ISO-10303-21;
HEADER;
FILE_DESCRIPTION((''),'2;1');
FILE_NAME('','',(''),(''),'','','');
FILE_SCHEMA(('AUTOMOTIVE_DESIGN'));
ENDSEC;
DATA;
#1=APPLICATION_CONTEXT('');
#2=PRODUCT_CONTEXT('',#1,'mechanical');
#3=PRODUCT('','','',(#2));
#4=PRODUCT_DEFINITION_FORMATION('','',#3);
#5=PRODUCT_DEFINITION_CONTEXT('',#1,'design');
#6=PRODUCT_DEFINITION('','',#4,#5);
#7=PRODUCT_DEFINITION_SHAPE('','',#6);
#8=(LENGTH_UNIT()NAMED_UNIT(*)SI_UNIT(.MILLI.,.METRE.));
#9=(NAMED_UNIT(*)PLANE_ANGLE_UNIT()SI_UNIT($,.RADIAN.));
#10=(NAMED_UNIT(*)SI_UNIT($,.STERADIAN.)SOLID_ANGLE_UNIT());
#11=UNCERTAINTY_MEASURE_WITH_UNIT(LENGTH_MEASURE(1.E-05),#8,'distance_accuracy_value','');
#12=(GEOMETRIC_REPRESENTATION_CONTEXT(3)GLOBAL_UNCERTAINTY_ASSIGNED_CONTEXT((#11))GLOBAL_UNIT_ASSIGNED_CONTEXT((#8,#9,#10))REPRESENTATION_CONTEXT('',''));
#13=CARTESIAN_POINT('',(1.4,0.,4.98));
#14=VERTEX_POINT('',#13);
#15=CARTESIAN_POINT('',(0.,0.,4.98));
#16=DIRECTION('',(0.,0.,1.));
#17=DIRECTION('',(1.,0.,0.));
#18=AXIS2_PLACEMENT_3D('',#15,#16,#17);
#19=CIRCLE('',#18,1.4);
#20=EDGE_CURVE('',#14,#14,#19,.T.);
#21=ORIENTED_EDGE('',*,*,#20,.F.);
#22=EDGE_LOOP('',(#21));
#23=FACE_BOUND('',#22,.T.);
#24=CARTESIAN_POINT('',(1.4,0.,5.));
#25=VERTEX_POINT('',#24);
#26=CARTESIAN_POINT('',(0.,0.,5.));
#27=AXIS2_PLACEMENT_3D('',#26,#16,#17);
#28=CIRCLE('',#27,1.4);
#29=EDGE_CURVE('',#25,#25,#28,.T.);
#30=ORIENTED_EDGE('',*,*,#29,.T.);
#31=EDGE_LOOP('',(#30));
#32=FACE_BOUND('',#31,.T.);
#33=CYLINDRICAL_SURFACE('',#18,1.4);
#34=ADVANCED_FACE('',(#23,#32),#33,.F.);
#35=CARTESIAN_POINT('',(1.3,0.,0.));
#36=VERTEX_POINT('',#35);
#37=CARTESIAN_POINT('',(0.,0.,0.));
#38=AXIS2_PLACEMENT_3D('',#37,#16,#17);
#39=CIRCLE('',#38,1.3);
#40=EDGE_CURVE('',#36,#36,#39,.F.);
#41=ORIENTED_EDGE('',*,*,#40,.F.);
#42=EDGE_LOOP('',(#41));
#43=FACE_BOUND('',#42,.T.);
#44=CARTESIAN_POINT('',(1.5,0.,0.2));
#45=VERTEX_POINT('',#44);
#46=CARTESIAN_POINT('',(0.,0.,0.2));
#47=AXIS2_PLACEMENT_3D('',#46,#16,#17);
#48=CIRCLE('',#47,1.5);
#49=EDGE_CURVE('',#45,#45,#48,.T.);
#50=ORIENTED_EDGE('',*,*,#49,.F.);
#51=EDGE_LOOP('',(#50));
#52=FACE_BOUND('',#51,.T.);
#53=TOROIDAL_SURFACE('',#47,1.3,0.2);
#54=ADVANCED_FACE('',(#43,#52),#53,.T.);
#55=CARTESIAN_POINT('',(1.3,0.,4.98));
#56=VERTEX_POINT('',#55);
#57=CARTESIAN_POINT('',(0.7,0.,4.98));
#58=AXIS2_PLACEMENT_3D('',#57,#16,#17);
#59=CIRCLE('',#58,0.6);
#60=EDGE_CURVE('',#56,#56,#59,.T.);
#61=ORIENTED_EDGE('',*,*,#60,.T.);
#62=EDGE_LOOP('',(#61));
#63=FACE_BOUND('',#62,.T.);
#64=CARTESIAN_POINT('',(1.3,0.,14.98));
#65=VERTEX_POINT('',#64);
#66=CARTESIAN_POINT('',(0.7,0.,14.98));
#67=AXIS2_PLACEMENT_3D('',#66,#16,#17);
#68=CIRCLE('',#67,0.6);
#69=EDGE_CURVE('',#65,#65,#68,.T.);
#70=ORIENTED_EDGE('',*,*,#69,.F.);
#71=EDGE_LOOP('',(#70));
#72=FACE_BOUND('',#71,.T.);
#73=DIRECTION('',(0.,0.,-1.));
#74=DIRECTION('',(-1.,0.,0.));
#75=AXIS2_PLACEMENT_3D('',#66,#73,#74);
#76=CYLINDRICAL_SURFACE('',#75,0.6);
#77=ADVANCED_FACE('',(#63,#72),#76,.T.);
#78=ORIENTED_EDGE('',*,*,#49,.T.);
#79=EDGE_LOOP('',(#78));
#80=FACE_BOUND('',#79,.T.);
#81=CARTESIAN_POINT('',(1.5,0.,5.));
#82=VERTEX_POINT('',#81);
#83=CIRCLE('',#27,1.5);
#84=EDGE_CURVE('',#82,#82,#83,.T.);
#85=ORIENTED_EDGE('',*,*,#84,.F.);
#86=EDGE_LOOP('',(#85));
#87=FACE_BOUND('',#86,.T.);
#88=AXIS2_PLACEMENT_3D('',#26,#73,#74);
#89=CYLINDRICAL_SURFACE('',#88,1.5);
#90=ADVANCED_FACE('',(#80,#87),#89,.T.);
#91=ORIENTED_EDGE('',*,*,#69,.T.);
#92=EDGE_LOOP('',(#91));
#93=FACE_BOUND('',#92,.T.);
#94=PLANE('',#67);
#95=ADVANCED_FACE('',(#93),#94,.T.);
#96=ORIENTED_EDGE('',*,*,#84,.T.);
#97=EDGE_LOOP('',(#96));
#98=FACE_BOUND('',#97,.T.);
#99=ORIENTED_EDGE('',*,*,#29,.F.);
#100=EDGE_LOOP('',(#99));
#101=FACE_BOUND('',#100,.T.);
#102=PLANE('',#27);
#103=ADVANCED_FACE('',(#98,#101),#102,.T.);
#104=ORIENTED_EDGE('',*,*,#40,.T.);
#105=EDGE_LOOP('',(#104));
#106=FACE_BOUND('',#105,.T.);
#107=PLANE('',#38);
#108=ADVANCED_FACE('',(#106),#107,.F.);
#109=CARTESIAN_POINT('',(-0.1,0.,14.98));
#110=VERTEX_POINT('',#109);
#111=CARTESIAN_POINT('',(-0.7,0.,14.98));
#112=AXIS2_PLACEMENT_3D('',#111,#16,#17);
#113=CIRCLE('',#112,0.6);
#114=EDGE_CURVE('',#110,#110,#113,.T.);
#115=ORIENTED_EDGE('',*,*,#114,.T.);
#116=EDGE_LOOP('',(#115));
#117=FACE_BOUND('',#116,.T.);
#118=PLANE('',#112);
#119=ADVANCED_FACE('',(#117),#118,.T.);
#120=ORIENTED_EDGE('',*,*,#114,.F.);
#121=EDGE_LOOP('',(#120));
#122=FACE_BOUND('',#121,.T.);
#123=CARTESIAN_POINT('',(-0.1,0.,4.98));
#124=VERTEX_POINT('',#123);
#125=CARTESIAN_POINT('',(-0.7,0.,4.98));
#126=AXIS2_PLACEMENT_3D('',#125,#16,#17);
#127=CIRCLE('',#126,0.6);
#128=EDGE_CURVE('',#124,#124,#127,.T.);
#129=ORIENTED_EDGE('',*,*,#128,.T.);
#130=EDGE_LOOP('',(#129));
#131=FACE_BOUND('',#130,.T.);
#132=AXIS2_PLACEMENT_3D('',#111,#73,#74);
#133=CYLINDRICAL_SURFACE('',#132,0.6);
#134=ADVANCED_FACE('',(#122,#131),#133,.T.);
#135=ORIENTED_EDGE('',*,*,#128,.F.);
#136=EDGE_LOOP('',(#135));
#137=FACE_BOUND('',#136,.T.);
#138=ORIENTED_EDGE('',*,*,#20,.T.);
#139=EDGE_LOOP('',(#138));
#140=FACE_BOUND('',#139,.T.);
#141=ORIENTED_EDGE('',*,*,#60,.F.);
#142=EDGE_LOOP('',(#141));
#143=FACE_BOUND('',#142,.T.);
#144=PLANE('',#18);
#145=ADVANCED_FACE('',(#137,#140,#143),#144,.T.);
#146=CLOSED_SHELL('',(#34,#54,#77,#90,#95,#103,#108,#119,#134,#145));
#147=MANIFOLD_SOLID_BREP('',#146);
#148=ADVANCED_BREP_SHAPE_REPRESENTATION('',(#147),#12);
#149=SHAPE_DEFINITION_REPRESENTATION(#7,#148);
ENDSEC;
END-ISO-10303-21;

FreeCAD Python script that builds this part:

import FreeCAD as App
import Part
import Sketcher


def edges_at(feature, points):
    """Names of the edges that pass closest to the given points."""
    edges = feature.Shape.Edges
    near = lambda p: min(range(len(edges)), key=lambda i: edges[i].distToShape(Part.Vertex(*p))[0])
    return sorted({f"Edge{near(p) + 1}" for p in points})

doc = App.newDocument("Part")
body = doc.addObject("PartDesign::Body", "Body")

sketch1 = body.newObject("Sketcher::SketchObject", "Sketch")
sketch1.AttachmentSupport = (doc.getObject("XY_Plane"), [""])
sketch1.MapMode = "FlatFace"
sketch1.addGeometry(Part.Circle(App.Vector(0, 0, 0), App.Vector(0, 0, 1), 1.5), False)
sketch1.addConstraint([
    Sketcher.Constraint("Coincident", 0, 3, -1, 1),
    Sketcher.Constraint("Diameter", 0, 3.0),
])
pad1 = body.newObject("PartDesign::Pad", "Pad")
pad1.Profile = sketch1
pad1.Length = 5
doc.recompute()

fillet = body.newObject("PartDesign::Fillet", "Fillet")
fillet.Base = (pad1, edges_at(pad1, [(-1.5, 0, 0)]))
fillet.Radius = 0.2

sketch2 = body.newObject("Sketcher::SketchObject", "Sketch001")
sketch2.AttachmentSupport = (doc.getObject("XY_Plane"), [""])
sketch2.MapMode = "FlatFace"
sketch2.AttachmentOffset = App.Placement(App.Vector(0, 0, 5), App.Rotation())
sketch2.addGeometry(Part.Circle(App.Vector(0, 0, 0), App.Vector(0, 0, 1), 1.4), False)
sketch2.addConstraint([
    Sketcher.Constraint("Coincident", 0, 3, -1, 1),
    Sketcher.Constraint("Diameter", 0, 2.8),
])
pocket1 = body.newObject("PartDesign::Pocket", "Pocket")
pocket1.Profile = sketch2
pocket1.Length = 0.02

sketch3 = body.newObject("Sketcher::SketchObject", "Sketch002")
sketch3.AttachmentSupport = (doc.getObject("XY_Plane"), [""])
sketch3.MapMode = "FlatFace"
sketch3.AttachmentOffset = App.Placement(App.Vector(0, 0, 4.98), App.Rotation())
sketch3.addGeometry([
    Part.Circle(App.Vector(-0.7, 0, 0), App.Vector(0, 0, 1), 0.6),
    Part.Circle(App.Vector(0.7, 0, 0), App.Vector(0, 0, 1), 0.6),
], False)
sketch3.addConstraint([
    Sketcher.Constraint("Equal", 0, 1),
    Sketcher.Constraint("Symmetric", 0, 3, 1, 3, -1, 1),
    Sketcher.Constraint("PointOnObject", 0, 3, -1),
    Sketcher.Constraint("Diameter", 0, 1.2),
    Sketcher.Constraint("DistanceX", 0, 3, -1, 1, 0.7),
])
pad2 = body.newObject("PartDesign::Pad", "Pad001")
pad2.Profile = sketch3
pad2.Length = 10

doc.recompute()
